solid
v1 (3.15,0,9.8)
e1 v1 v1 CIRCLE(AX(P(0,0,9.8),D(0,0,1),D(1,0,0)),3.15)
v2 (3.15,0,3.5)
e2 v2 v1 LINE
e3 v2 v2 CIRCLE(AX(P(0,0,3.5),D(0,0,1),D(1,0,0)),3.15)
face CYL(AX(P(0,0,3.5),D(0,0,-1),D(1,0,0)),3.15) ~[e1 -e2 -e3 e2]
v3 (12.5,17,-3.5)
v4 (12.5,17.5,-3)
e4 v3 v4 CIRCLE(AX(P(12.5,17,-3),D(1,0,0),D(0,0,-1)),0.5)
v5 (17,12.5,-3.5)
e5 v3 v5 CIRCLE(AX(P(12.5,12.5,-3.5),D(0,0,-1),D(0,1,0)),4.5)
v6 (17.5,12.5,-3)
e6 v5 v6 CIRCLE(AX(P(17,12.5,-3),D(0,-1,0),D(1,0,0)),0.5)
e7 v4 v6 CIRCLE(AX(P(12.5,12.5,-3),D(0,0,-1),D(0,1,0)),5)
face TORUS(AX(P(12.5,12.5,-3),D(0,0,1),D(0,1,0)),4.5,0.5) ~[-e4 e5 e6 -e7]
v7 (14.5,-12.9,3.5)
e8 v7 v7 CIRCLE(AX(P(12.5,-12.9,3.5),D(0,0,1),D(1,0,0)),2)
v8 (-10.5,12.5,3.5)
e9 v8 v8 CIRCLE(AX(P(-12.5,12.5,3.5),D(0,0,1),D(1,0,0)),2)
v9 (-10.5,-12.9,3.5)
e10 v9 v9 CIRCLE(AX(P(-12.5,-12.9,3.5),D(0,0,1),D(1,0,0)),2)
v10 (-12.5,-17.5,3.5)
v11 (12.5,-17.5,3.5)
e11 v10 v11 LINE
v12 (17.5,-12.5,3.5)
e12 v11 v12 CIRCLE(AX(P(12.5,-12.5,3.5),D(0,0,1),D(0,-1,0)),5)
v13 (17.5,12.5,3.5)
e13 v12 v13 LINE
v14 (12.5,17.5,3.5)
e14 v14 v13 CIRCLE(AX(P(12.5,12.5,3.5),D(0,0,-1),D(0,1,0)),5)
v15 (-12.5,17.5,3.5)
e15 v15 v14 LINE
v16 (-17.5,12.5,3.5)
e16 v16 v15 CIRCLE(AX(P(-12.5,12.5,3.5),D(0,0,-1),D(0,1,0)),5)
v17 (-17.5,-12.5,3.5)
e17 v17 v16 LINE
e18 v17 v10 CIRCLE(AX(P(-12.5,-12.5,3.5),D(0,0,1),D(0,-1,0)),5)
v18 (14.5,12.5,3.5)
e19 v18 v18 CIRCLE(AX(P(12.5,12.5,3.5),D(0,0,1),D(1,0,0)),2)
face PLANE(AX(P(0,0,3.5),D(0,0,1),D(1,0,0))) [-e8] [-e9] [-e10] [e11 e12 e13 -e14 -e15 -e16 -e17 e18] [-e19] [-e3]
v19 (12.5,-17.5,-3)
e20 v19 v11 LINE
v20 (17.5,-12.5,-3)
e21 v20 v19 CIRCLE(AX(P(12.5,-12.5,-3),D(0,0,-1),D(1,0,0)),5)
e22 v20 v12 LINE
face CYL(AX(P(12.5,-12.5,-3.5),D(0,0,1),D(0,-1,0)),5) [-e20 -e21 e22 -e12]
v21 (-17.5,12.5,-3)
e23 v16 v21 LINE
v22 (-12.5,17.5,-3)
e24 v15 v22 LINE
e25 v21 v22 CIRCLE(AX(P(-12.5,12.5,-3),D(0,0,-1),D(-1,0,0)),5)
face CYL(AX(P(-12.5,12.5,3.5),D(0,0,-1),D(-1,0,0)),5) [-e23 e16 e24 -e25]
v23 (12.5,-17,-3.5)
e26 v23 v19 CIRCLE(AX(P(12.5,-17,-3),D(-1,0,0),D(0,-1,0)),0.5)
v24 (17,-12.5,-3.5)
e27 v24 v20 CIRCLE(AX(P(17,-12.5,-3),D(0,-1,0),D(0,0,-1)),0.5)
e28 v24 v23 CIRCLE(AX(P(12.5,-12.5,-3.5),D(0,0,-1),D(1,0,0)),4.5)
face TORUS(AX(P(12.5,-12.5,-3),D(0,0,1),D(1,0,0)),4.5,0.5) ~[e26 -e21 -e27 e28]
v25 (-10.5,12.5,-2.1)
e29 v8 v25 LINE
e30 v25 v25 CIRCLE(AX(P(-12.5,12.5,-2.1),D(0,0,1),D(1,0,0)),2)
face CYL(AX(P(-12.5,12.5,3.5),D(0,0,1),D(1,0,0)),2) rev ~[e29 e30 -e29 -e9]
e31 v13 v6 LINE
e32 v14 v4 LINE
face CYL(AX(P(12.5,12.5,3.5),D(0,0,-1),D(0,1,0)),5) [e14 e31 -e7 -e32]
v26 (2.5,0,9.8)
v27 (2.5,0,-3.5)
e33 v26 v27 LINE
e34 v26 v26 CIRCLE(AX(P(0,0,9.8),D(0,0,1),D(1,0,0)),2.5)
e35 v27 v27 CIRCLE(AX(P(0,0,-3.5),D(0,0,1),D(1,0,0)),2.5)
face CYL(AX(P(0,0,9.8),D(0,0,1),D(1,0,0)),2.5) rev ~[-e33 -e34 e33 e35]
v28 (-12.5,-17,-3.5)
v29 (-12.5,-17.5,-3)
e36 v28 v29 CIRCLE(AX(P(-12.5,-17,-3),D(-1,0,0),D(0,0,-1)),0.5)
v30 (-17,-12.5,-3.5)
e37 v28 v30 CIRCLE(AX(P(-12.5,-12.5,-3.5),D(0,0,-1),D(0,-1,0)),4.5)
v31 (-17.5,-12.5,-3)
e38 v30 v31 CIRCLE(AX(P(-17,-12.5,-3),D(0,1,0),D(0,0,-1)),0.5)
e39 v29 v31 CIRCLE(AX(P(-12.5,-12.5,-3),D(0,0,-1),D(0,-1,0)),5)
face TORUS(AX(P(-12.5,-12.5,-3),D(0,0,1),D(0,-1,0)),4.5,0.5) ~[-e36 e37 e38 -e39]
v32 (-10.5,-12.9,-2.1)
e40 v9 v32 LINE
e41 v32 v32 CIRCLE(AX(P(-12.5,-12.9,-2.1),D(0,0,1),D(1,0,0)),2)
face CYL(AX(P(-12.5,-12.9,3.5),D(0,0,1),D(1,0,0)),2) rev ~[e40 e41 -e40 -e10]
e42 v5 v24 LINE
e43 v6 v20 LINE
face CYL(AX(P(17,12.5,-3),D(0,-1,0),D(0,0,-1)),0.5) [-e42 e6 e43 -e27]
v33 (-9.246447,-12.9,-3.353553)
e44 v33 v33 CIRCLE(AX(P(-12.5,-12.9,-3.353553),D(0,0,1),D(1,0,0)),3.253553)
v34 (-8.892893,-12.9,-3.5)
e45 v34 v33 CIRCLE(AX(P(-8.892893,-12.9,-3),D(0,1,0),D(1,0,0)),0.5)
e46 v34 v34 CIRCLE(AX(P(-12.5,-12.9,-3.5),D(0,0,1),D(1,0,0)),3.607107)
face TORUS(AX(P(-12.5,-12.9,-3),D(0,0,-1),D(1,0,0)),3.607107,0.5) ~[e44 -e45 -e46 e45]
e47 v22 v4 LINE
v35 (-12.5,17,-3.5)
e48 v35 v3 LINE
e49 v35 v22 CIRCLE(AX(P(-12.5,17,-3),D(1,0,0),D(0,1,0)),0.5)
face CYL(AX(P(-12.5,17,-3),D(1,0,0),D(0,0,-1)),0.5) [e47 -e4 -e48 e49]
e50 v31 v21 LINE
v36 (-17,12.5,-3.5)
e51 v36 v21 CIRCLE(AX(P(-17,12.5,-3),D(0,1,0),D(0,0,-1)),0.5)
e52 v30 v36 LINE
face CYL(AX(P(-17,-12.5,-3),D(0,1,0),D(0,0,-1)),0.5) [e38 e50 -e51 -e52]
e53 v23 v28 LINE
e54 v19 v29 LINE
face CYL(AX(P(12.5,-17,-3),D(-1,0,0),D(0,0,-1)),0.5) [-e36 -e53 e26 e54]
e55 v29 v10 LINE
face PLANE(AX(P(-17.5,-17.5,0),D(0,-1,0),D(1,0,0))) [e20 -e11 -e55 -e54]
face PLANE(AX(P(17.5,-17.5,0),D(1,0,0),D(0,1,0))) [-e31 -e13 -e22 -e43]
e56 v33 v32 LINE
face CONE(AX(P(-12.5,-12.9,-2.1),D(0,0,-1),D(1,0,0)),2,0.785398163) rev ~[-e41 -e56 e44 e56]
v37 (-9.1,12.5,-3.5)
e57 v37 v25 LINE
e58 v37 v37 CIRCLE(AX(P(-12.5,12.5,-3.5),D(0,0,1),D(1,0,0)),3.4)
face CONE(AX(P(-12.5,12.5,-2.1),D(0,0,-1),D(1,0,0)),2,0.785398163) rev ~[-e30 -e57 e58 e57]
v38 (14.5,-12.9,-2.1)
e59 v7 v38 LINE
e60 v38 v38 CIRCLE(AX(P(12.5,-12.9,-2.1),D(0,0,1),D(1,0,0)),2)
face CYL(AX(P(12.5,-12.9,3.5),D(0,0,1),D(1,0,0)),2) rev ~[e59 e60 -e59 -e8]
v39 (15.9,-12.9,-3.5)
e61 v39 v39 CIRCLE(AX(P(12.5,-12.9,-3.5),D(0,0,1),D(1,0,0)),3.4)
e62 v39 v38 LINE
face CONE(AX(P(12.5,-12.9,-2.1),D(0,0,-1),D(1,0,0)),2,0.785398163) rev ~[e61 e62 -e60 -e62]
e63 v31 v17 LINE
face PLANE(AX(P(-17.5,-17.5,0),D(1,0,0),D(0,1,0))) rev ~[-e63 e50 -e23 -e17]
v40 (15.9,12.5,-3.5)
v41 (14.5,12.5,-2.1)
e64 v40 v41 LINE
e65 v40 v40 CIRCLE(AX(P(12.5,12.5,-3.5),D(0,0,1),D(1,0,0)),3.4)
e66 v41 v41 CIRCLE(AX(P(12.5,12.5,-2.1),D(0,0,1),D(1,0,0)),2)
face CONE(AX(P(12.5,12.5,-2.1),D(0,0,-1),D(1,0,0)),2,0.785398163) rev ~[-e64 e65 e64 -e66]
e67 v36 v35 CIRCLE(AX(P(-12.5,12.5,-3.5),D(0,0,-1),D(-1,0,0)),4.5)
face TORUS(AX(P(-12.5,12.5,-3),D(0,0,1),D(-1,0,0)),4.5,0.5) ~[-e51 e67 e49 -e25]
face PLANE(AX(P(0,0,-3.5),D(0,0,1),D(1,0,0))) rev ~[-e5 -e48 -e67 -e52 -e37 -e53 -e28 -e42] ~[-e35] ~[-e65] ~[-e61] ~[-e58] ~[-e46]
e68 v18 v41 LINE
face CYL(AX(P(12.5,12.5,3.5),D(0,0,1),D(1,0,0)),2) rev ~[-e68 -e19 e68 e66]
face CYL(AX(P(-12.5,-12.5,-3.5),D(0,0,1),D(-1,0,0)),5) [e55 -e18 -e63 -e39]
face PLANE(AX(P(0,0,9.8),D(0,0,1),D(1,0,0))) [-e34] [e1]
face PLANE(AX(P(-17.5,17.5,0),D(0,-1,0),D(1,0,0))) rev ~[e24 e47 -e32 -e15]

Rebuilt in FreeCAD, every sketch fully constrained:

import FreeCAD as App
import Part
import Sketcher

V = App.Vector
Q = App.Units.Quantity


def edges_at(feature, points):
    """Names of the edges that pass closest to the given points."""
    edges = feature.Shape.Edges
    near = lambda p: min(range(len(edges)), key=lambda i: edges[i].distToShape(Part.Vertex(*p))[0])
    return sorted({f"Edge{near(p) + 1}" for p in points})


def add_polygon(sketch, points):
    """Adds a closed chain of lines whose ends are joined by coincident constraints."""
    first, n = sketch.GeometryCount, len(points)
    for a, b in zip(points, points[1:] + points[:1]):
        sketch.addGeometry(Part.LineSegment(App.Vector(*a, 0), App.Vector(*b, 0)), False)
    for i in range(n):
        sketch.addConstraint(Sketcher.Constraint("Coincident", first + i, 2, first + (i + 1) % n, 1))

doc = App.newDocument("Part")
body = doc.addObject("PartDesign::Body", "Body")

# Sketch on XY plane
sketch1 = body.newObject("Sketcher::SketchObject", "Sketch")
sketch1.AttachmentSupport = (doc.getObject("XY_Plane"), [""])
sketch1.MapMode = "FlatFace"
add_polygon(sketch1, [(-17.5, 17.5), (-17.5, -17.5), (17.5, -17.5), (17.5, 17.5)])  # lines 0-3
sketch1.addConstraint(Sketcher.Constraint("Vertical", 0))
sketch1.addConstraint(Sketcher.Constraint("Horizontal", 1))
sketch1.addConstraint(Sketcher.Constraint("Vertical", 2))
sketch1.addConstraint(Sketcher.Constraint("Horizontal", 3))
sketch1.addConstraint(Sketcher.Constraint("Symmetric", 0, 2, 2, 2, -1, 1))
sketch1.addConstraint(Sketcher.Constraint("Equal", 3, 0))
sketch1.addConstraint(Sketcher.Constraint("DistanceX", 1, 1, 1, 2, Q("35 mm")))
pad1 = body.newObject("PartDesign::Pad", "Pad")
pad1.Profile = sketch1
pad1.Length = 7
pad1.Midplane = True

# Sketch on XY plane
sketch2 = body.newObject("Sketcher::SketchObject", "Sketch001")
sketch2.AttachmentSupport = (doc.getObject("XY_Plane"), [""])
sketch2.MapMode = "FlatFace"
sketch2.AttachmentOffset = App.Placement(V(0, 0, 3.5), App.Rotation())
sketch2.addGeometry(Part.Circle(V(-12.5, -12.9, 0), V(0, 0, 1), 2), False)
sketch2.addGeometry(Part.Circle(V(-12.5, 12.5, 0), V(0, 0, 1), 2), False)
sketch2.addGeometry(Part.Circle(V(12.5, 12.5, 0), V(0, 0, 1), 2), False)
sketch2.addGeometry(Part.Circle(V(12.5, -12.9, 0), V(0, 0, 1), 2), False)
sketch2.addConstraint(Sketcher.Constraint("Equal", 0, 1))
sketch2.addConstraint(Sketcher.Constraint("Equal", 1, 2))
sketch2.addConstraint(Sketcher.Constraint("Equal", 2, 3))
sketch2.addConstraint(Sketcher.Constraint("Symmetric", 1, 3, 2, 3, -2))
sketch2.addConstraint(Sketcher.Constraint("Symmetric", 0, 3, 3, 3, -2))
sketch2.addConstraint(Sketcher.Constraint("Vertical", 0, 3, 1, 3))
sketch2.addConstraint(Sketcher.Constraint("Diameter", 0, Q("4 mm")))
sketch2.addConstraint(Sketcher.Constraint("DistanceX", 1, 3, 2, 3, Q("25 mm")))
sketch2.addConstraint(Sketcher.Constraint("DistanceY", 0, 3, -1, 1, Q("12.9 mm")))
sketch2.addConstraint(Sketcher.Constraint("DistanceY", -1, 1, 1, 3, Q("12.5 mm")))
pocket1 = body.newObject("PartDesign::Pocket", "Pocket")
pocket1.Profile = sketch2
pocket1.Type = "ThroughAll"
doc.recompute()

fillet = body.newObject("PartDesign::Fillet", "Fillet")
fillet.Base = (pocket1, edges_at(pocket1, [
    (-17.5, 17.5, 0),
    (17.5, 17.5, 0),
    (17.5, -17.5, 0),
    (-17.5, -17.5, 0),
]))
fillet.Radius = 5

# Sketch on XY plane
sketch3 = body.newObject("Sketcher::SketchObject", "Sketch002")
sketch3.AttachmentSupport = (doc.getObject("XY_Plane"), [""])
sketch3.MapMode = "FlatFace"
sketch3.AttachmentOffset = App.Placement(V(0, 0, 3.5), App.Rotation())
sketch3.addGeometry(Part.Circle(V(0, 0, 0), V(0, 0, 1), 3.15), False)
sketch3.addConstraint(Sketcher.Constraint("Coincident", 0, 3, -1, 1))
sketch3.addConstraint(Sketcher.Constraint("Diameter", 0, Q("6.3 mm")))
pad2 = body.newObject("PartDesign::Pad", "Pad001")
pad2.Profile = sketch3
pad2.Length = 6.3

# Sketch on XY plane
sketch4 = body.newObject("Sketcher::SketchObject", "Sketch003")
sketch4.AttachmentSupport = (doc.getObject("XY_Plane"), [""])
sketch4.MapMode = "FlatFace"
sketch4.AttachmentOffset = App.Placement(V(0, 0, 9.8), App.Rotation())
sketch4.addGeometry(Part.Circle(V(0, 0, 0), V(0, 0, 1), 2.5), False)
sketch4.addConstraint(Sketcher.Constraint("Coincident", 0, 3, -1, 1))
sketch4.addConstraint(Sketcher.Constraint("Diameter", 0, Q("5 mm")))
pocket2 = body.newObject("PartDesign::Pocket", "Pocket001")
pocket2.Profile = sketch4
pocket2.Type = "ThroughAll"
doc.recompute()

chamfer = body.newObject("PartDesign::Chamfer", "Chamfer")
chamfer.Base = (pocket2, edges_at(pocket2, [
    (-14.5, -12.9, -3.5),
    (10.5, -12.9, -3.5),
    (10.5, 12.5, -3.5),
    (-14.5, 12.5, -3.5),
]))
chamfer.Size = 1.4
doc.recompute()

fillet2 = body.newObject("PartDesign::Fillet", "Fillet001")
fillet2.Base = (chamfer, edges_at(chamfer, [(-15.9, -12.9, -3.5), (-17.5, 0, -3.5)]))
fillet2.Radius = 0.5

doc.recompute()
